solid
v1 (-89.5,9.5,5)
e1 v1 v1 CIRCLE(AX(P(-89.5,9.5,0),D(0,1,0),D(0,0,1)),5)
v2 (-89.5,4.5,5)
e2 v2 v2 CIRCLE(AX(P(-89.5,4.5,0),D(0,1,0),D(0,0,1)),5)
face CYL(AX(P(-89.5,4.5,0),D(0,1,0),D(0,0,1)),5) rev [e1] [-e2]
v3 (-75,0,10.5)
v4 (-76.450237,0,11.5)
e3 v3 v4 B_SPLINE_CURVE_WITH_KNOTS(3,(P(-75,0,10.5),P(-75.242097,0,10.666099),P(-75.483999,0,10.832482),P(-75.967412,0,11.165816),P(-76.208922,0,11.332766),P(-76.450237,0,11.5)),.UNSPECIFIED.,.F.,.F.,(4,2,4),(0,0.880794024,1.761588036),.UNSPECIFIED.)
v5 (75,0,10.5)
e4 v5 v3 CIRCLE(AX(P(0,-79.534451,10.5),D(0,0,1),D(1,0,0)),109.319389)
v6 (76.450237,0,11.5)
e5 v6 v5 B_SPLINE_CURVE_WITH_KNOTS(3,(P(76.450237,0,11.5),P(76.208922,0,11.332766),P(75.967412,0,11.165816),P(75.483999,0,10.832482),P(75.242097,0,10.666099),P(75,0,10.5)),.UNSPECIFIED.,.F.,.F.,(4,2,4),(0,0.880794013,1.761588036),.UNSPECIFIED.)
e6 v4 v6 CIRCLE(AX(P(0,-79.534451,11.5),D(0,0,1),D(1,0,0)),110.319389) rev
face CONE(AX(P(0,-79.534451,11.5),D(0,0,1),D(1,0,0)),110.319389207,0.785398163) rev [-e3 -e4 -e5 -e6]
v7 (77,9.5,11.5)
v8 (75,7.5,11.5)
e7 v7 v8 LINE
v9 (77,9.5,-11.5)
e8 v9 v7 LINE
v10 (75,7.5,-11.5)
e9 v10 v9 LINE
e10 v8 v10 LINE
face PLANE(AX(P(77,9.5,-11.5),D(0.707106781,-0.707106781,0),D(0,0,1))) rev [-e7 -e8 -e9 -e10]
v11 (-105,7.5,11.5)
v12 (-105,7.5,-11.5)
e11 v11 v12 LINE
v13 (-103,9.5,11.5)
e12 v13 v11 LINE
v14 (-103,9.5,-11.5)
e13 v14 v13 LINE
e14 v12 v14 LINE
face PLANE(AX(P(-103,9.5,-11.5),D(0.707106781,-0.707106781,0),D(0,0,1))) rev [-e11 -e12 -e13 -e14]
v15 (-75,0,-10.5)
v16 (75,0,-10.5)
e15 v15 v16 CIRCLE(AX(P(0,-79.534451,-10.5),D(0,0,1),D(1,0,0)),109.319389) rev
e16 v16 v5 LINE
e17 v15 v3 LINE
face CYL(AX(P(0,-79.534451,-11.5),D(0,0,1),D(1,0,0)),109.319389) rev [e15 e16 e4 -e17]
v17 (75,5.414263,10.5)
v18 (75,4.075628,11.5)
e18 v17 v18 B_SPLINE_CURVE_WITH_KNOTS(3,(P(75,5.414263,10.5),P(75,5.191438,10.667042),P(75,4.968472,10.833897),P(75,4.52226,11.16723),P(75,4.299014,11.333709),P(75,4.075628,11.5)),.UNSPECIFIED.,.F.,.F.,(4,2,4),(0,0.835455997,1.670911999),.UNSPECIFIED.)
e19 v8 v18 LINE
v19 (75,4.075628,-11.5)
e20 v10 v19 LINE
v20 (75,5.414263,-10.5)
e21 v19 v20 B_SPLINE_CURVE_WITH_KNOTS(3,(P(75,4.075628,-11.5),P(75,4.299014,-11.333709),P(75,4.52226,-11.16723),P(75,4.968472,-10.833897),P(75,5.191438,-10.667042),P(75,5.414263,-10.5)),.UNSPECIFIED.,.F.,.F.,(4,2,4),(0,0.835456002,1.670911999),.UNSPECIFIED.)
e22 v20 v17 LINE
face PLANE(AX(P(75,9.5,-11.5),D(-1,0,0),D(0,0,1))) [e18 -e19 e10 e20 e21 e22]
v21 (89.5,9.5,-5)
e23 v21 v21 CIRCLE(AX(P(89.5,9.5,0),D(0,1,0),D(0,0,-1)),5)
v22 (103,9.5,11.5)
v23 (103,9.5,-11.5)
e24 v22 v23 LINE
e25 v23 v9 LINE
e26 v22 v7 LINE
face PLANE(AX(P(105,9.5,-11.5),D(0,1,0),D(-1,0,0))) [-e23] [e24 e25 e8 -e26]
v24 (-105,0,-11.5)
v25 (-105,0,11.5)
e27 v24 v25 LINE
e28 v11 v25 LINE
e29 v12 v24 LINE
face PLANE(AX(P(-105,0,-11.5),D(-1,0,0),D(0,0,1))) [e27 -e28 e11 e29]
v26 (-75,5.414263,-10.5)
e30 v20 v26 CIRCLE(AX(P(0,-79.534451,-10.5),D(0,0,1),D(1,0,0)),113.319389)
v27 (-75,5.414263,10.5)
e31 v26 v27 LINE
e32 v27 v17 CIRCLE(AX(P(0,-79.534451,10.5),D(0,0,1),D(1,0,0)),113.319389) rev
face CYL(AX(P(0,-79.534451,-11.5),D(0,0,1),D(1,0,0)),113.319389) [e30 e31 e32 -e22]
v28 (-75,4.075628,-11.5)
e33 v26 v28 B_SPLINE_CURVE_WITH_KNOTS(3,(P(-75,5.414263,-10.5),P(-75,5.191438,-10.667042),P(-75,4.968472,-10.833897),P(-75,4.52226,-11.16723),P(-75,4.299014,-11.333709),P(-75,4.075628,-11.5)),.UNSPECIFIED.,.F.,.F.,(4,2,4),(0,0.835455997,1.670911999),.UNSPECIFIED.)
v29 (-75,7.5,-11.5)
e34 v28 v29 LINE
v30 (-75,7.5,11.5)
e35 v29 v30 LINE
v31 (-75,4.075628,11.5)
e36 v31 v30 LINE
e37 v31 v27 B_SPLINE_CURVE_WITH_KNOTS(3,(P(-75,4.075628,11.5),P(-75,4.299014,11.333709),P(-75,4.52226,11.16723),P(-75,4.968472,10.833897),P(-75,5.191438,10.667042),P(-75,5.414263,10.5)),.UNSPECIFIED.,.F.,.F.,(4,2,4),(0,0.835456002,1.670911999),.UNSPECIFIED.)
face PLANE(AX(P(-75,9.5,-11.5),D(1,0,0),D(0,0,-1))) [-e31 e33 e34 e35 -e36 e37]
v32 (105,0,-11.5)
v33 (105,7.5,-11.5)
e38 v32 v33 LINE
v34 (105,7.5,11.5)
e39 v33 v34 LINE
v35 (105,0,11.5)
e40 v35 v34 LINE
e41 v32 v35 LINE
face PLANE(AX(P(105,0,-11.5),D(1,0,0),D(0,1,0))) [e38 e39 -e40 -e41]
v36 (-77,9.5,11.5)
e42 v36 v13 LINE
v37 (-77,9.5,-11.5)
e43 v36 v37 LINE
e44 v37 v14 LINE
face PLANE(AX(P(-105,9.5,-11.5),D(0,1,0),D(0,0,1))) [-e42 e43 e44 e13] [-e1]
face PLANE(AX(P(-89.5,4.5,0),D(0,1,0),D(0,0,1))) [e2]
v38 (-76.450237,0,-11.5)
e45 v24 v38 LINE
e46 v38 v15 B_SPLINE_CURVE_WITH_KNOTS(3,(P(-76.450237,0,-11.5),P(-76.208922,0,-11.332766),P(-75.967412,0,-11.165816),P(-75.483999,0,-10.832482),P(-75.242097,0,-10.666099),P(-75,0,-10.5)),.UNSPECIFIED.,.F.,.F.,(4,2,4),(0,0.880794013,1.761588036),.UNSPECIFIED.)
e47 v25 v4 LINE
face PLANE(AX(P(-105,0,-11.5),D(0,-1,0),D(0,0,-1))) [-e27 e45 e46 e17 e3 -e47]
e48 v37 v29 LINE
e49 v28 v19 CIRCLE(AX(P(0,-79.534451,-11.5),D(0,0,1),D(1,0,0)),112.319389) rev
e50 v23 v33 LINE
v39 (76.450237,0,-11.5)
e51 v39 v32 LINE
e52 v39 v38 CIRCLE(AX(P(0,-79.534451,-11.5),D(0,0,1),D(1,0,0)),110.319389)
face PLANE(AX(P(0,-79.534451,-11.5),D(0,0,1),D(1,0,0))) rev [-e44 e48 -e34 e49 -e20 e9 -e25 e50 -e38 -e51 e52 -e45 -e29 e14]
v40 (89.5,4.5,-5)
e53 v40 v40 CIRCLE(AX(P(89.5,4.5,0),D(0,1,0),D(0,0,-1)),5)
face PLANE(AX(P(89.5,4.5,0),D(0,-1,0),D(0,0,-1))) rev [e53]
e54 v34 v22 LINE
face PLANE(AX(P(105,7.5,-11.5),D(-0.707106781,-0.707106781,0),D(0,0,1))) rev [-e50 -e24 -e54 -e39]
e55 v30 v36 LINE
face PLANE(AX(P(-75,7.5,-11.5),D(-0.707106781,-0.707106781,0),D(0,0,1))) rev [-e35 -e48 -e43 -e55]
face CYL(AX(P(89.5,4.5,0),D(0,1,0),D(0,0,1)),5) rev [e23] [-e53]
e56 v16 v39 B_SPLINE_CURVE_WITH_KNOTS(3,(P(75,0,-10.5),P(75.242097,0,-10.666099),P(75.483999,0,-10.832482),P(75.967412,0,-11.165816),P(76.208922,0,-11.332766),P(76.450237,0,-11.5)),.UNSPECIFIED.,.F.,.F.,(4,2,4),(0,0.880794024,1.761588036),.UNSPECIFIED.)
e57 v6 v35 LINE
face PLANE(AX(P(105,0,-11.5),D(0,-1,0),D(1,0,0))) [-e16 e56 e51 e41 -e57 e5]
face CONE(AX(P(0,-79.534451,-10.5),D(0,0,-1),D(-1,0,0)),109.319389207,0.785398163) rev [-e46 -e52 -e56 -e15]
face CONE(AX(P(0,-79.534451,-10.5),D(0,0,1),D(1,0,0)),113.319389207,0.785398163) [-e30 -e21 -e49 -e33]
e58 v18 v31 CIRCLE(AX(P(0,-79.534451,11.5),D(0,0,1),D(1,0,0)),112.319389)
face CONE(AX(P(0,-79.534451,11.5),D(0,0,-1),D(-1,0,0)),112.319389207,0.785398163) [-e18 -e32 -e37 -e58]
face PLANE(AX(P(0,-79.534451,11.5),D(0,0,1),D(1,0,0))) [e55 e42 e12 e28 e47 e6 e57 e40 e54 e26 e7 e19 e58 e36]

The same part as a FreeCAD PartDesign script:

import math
import FreeCAD as App
import Part
import Sketcher

V = App.Vector


def edges_at(feature, points):
    """Names of the edges that pass closest to the given points."""
    edges = feature.Shape.Edges
    near = lambda p: min(range(len(edges)), key=lambda i: edges[i].distToShape(Part.Vertex(*p))[0])
    return sorted({f"Edge{near(p) + 1}" for p in points})

doc = App.newDocument("Part")
body = doc.addObject("PartDesign::Body", "Body")

# Sketch on XY plane
sketch1 = body.newObject("Sketcher::SketchObject", "Sketch")
sketch1.AttachmentSupport = (doc.getObject("XY_Plane"), [""])
sketch1.MapMode = "FlatFace"
sketch1.addGeometry([
    Part.LineSegment(V(-105, 0, 0), V(-75, 0, 0)),  # 0
    Part.ArcOfCircle(Part.Circle(V(0, -79.5, 0), V(0, 0, 1), 109.3), math.radians(47), math.radians(133)),  # 1
    Part.LineSegment(V(75, 0, 0), V(105, 0, 0)),  # 2
    Part.LineSegment(V(105, 0, 0), V(105, 9.5, 0)),  # 3
    Part.LineSegment(V(105, 9.5, 0), V(75, 9.5, 0)),  # 4
    Part.LineSegment(V(75, 9.5, 0), V(75, 5.4, 0)),  # 5
    Part.ArcOfCircle(Part.Circle(V(0, -79.5, 0), V(0, 0, 1), 113.3), math.radians(49), math.radians(131)),  # 6
    Part.LineSegment(V(-75, 5.4, 0), V(-75, 9.5, 0)),  # 7
    Part.LineSegment(V(-75, 9.5, 0), V(-105, 9.5, 0)),  # 8
    Part.LineSegment(V(-105, 9.5, 0), V(-105, 0, 0)),  # 9
], False)
sketch1.addConstraint([
    Sketcher.Constraint("Coincident", 0, 2, 1, 2),
    Sketcher.Constraint("Coincident", 1, 1, 2, 1),
    Sketcher.Constraint("Coincident", 2, 2, 3, 1),
    Sketcher.Constraint("Coincident", 3, 2, 4, 1),
    Sketcher.Constraint("Coincident", 4, 2, 5, 1),
    Sketcher.Constraint("Coincident", 5, 2, 6, 1),
    Sketcher.Constraint("Coincident", 6, 2, 7, 1),
    Sketcher.Constraint("Coincident", 7, 2, 8, 1),
    Sketcher.Constraint("Coincident", 8, 2, 9, 1),
    Sketcher.Constraint("Coincident", 9, 2, 0, 1),
    Sketcher.Constraint("Horizontal", 0),
    Sketcher.Constraint("Horizontal", 2),
    Sketcher.Constraint("Vertical", 3),
    Sketcher.Constraint("Horizontal", 4),
    Sketcher.Constraint("Vertical", 5),
    Sketcher.Constraint("Vertical", 7),
    Sketcher.Constraint("Horizontal", 8),
    Sketcher.Constraint("Vertical", 9),
    Sketcher.Constraint("Coincident", 6, 3, 1, 3),
    Sketcher.Constraint("Symmetric", 0, 2, 1, 1, -1, 1),
    Sketcher.Constraint("Symmetric", 5, 2, 6, 2, -2),
    Sketcher.Constraint("Symmetric", 3, 2, 8, 2, -2),
    Sketcher.Constraint("Vertical", 1, 1, 4, 2),
    Sketcher.Constraint("DistanceX", 0, 1, 0, 2, 30.0),
    Sketcher.Constraint("DistanceY", 3, 1, 3, 2, 9.5),
    Sketcher.Constraint("DistanceX", 0, 2, -1, 1, 75.0),
    Sketcher.Constraint("Radius", 1, 109.319389),
    Sketcher.Constraint("Radius", 6, 113.319389),
])
pad1 = body.newObject("PartDesign::Pad", "Pad")
pad1.Profile = sketch1
pad1.Type = "TwoLengths"
pad1.Length = 11.5
pad1.Length2 = 11.5

# Sketch on XZ plane
sketch2 = body.newObject("Sketcher::SketchObject", "Sketch001")
sketch2.AttachmentSupport = (doc.getObject("XZ_Plane"), [""])
sketch2.MapMode = "FlatFace"
sketch2.AttachmentOffset = App.Placement(V(0, 0, -9.5), App.Rotation())
sketch2.addGeometry([
    Part.Circle(V(-90, 0, 0), V(0, 0, 1), 5),
    Part.Circle(V(90, 0, 0), V(0, 0, 1), 5),
], False)
sketch2.addConstraint([
    Sketcher.Constraint("Equal", 0, 1),
    Sketcher.Constraint("Symmetric", 0, 3, 1, 3, -1, 1),
    Sketcher.Constraint("PointOnObject", 0, 3, -1),
    Sketcher.Constraint("Diameter", 0, 10.0),
    Sketcher.Constraint("DistanceX", 0, 3, 1, 3, 179.0),
])
pocket1 = body.newObject("PartDesign::Pocket", "Pocket")
pocket1.Profile = sketch2
pocket1.Length = 5
pocket1.Reversed = True
doc.recompute()

chamfer = body.newObject("PartDesign::Chamfer", "Chamfer")
chamfer.Base = (pocket1, edges_at(pocket1, [
    (0, 29.785, -11.5),
    (0, 33.785, -11.5),
    (0, 29.785, 11.5),
    (0, 33.785, 11.5),
]))
chamfer.Size = 1
doc.recompute()

chamfer2 = body.newObject("PartDesign::Chamfer", "Chamfer001")
chamfer2.Base = (chamfer, edges_at(chamfer, [
    (-105, 9.5, 0),
    (-75, 9.5, 0),
    (75, 9.5, 0),
    (105, 9.5, 0),
]))
chamfer2.Size = 2

doc.recompute()
